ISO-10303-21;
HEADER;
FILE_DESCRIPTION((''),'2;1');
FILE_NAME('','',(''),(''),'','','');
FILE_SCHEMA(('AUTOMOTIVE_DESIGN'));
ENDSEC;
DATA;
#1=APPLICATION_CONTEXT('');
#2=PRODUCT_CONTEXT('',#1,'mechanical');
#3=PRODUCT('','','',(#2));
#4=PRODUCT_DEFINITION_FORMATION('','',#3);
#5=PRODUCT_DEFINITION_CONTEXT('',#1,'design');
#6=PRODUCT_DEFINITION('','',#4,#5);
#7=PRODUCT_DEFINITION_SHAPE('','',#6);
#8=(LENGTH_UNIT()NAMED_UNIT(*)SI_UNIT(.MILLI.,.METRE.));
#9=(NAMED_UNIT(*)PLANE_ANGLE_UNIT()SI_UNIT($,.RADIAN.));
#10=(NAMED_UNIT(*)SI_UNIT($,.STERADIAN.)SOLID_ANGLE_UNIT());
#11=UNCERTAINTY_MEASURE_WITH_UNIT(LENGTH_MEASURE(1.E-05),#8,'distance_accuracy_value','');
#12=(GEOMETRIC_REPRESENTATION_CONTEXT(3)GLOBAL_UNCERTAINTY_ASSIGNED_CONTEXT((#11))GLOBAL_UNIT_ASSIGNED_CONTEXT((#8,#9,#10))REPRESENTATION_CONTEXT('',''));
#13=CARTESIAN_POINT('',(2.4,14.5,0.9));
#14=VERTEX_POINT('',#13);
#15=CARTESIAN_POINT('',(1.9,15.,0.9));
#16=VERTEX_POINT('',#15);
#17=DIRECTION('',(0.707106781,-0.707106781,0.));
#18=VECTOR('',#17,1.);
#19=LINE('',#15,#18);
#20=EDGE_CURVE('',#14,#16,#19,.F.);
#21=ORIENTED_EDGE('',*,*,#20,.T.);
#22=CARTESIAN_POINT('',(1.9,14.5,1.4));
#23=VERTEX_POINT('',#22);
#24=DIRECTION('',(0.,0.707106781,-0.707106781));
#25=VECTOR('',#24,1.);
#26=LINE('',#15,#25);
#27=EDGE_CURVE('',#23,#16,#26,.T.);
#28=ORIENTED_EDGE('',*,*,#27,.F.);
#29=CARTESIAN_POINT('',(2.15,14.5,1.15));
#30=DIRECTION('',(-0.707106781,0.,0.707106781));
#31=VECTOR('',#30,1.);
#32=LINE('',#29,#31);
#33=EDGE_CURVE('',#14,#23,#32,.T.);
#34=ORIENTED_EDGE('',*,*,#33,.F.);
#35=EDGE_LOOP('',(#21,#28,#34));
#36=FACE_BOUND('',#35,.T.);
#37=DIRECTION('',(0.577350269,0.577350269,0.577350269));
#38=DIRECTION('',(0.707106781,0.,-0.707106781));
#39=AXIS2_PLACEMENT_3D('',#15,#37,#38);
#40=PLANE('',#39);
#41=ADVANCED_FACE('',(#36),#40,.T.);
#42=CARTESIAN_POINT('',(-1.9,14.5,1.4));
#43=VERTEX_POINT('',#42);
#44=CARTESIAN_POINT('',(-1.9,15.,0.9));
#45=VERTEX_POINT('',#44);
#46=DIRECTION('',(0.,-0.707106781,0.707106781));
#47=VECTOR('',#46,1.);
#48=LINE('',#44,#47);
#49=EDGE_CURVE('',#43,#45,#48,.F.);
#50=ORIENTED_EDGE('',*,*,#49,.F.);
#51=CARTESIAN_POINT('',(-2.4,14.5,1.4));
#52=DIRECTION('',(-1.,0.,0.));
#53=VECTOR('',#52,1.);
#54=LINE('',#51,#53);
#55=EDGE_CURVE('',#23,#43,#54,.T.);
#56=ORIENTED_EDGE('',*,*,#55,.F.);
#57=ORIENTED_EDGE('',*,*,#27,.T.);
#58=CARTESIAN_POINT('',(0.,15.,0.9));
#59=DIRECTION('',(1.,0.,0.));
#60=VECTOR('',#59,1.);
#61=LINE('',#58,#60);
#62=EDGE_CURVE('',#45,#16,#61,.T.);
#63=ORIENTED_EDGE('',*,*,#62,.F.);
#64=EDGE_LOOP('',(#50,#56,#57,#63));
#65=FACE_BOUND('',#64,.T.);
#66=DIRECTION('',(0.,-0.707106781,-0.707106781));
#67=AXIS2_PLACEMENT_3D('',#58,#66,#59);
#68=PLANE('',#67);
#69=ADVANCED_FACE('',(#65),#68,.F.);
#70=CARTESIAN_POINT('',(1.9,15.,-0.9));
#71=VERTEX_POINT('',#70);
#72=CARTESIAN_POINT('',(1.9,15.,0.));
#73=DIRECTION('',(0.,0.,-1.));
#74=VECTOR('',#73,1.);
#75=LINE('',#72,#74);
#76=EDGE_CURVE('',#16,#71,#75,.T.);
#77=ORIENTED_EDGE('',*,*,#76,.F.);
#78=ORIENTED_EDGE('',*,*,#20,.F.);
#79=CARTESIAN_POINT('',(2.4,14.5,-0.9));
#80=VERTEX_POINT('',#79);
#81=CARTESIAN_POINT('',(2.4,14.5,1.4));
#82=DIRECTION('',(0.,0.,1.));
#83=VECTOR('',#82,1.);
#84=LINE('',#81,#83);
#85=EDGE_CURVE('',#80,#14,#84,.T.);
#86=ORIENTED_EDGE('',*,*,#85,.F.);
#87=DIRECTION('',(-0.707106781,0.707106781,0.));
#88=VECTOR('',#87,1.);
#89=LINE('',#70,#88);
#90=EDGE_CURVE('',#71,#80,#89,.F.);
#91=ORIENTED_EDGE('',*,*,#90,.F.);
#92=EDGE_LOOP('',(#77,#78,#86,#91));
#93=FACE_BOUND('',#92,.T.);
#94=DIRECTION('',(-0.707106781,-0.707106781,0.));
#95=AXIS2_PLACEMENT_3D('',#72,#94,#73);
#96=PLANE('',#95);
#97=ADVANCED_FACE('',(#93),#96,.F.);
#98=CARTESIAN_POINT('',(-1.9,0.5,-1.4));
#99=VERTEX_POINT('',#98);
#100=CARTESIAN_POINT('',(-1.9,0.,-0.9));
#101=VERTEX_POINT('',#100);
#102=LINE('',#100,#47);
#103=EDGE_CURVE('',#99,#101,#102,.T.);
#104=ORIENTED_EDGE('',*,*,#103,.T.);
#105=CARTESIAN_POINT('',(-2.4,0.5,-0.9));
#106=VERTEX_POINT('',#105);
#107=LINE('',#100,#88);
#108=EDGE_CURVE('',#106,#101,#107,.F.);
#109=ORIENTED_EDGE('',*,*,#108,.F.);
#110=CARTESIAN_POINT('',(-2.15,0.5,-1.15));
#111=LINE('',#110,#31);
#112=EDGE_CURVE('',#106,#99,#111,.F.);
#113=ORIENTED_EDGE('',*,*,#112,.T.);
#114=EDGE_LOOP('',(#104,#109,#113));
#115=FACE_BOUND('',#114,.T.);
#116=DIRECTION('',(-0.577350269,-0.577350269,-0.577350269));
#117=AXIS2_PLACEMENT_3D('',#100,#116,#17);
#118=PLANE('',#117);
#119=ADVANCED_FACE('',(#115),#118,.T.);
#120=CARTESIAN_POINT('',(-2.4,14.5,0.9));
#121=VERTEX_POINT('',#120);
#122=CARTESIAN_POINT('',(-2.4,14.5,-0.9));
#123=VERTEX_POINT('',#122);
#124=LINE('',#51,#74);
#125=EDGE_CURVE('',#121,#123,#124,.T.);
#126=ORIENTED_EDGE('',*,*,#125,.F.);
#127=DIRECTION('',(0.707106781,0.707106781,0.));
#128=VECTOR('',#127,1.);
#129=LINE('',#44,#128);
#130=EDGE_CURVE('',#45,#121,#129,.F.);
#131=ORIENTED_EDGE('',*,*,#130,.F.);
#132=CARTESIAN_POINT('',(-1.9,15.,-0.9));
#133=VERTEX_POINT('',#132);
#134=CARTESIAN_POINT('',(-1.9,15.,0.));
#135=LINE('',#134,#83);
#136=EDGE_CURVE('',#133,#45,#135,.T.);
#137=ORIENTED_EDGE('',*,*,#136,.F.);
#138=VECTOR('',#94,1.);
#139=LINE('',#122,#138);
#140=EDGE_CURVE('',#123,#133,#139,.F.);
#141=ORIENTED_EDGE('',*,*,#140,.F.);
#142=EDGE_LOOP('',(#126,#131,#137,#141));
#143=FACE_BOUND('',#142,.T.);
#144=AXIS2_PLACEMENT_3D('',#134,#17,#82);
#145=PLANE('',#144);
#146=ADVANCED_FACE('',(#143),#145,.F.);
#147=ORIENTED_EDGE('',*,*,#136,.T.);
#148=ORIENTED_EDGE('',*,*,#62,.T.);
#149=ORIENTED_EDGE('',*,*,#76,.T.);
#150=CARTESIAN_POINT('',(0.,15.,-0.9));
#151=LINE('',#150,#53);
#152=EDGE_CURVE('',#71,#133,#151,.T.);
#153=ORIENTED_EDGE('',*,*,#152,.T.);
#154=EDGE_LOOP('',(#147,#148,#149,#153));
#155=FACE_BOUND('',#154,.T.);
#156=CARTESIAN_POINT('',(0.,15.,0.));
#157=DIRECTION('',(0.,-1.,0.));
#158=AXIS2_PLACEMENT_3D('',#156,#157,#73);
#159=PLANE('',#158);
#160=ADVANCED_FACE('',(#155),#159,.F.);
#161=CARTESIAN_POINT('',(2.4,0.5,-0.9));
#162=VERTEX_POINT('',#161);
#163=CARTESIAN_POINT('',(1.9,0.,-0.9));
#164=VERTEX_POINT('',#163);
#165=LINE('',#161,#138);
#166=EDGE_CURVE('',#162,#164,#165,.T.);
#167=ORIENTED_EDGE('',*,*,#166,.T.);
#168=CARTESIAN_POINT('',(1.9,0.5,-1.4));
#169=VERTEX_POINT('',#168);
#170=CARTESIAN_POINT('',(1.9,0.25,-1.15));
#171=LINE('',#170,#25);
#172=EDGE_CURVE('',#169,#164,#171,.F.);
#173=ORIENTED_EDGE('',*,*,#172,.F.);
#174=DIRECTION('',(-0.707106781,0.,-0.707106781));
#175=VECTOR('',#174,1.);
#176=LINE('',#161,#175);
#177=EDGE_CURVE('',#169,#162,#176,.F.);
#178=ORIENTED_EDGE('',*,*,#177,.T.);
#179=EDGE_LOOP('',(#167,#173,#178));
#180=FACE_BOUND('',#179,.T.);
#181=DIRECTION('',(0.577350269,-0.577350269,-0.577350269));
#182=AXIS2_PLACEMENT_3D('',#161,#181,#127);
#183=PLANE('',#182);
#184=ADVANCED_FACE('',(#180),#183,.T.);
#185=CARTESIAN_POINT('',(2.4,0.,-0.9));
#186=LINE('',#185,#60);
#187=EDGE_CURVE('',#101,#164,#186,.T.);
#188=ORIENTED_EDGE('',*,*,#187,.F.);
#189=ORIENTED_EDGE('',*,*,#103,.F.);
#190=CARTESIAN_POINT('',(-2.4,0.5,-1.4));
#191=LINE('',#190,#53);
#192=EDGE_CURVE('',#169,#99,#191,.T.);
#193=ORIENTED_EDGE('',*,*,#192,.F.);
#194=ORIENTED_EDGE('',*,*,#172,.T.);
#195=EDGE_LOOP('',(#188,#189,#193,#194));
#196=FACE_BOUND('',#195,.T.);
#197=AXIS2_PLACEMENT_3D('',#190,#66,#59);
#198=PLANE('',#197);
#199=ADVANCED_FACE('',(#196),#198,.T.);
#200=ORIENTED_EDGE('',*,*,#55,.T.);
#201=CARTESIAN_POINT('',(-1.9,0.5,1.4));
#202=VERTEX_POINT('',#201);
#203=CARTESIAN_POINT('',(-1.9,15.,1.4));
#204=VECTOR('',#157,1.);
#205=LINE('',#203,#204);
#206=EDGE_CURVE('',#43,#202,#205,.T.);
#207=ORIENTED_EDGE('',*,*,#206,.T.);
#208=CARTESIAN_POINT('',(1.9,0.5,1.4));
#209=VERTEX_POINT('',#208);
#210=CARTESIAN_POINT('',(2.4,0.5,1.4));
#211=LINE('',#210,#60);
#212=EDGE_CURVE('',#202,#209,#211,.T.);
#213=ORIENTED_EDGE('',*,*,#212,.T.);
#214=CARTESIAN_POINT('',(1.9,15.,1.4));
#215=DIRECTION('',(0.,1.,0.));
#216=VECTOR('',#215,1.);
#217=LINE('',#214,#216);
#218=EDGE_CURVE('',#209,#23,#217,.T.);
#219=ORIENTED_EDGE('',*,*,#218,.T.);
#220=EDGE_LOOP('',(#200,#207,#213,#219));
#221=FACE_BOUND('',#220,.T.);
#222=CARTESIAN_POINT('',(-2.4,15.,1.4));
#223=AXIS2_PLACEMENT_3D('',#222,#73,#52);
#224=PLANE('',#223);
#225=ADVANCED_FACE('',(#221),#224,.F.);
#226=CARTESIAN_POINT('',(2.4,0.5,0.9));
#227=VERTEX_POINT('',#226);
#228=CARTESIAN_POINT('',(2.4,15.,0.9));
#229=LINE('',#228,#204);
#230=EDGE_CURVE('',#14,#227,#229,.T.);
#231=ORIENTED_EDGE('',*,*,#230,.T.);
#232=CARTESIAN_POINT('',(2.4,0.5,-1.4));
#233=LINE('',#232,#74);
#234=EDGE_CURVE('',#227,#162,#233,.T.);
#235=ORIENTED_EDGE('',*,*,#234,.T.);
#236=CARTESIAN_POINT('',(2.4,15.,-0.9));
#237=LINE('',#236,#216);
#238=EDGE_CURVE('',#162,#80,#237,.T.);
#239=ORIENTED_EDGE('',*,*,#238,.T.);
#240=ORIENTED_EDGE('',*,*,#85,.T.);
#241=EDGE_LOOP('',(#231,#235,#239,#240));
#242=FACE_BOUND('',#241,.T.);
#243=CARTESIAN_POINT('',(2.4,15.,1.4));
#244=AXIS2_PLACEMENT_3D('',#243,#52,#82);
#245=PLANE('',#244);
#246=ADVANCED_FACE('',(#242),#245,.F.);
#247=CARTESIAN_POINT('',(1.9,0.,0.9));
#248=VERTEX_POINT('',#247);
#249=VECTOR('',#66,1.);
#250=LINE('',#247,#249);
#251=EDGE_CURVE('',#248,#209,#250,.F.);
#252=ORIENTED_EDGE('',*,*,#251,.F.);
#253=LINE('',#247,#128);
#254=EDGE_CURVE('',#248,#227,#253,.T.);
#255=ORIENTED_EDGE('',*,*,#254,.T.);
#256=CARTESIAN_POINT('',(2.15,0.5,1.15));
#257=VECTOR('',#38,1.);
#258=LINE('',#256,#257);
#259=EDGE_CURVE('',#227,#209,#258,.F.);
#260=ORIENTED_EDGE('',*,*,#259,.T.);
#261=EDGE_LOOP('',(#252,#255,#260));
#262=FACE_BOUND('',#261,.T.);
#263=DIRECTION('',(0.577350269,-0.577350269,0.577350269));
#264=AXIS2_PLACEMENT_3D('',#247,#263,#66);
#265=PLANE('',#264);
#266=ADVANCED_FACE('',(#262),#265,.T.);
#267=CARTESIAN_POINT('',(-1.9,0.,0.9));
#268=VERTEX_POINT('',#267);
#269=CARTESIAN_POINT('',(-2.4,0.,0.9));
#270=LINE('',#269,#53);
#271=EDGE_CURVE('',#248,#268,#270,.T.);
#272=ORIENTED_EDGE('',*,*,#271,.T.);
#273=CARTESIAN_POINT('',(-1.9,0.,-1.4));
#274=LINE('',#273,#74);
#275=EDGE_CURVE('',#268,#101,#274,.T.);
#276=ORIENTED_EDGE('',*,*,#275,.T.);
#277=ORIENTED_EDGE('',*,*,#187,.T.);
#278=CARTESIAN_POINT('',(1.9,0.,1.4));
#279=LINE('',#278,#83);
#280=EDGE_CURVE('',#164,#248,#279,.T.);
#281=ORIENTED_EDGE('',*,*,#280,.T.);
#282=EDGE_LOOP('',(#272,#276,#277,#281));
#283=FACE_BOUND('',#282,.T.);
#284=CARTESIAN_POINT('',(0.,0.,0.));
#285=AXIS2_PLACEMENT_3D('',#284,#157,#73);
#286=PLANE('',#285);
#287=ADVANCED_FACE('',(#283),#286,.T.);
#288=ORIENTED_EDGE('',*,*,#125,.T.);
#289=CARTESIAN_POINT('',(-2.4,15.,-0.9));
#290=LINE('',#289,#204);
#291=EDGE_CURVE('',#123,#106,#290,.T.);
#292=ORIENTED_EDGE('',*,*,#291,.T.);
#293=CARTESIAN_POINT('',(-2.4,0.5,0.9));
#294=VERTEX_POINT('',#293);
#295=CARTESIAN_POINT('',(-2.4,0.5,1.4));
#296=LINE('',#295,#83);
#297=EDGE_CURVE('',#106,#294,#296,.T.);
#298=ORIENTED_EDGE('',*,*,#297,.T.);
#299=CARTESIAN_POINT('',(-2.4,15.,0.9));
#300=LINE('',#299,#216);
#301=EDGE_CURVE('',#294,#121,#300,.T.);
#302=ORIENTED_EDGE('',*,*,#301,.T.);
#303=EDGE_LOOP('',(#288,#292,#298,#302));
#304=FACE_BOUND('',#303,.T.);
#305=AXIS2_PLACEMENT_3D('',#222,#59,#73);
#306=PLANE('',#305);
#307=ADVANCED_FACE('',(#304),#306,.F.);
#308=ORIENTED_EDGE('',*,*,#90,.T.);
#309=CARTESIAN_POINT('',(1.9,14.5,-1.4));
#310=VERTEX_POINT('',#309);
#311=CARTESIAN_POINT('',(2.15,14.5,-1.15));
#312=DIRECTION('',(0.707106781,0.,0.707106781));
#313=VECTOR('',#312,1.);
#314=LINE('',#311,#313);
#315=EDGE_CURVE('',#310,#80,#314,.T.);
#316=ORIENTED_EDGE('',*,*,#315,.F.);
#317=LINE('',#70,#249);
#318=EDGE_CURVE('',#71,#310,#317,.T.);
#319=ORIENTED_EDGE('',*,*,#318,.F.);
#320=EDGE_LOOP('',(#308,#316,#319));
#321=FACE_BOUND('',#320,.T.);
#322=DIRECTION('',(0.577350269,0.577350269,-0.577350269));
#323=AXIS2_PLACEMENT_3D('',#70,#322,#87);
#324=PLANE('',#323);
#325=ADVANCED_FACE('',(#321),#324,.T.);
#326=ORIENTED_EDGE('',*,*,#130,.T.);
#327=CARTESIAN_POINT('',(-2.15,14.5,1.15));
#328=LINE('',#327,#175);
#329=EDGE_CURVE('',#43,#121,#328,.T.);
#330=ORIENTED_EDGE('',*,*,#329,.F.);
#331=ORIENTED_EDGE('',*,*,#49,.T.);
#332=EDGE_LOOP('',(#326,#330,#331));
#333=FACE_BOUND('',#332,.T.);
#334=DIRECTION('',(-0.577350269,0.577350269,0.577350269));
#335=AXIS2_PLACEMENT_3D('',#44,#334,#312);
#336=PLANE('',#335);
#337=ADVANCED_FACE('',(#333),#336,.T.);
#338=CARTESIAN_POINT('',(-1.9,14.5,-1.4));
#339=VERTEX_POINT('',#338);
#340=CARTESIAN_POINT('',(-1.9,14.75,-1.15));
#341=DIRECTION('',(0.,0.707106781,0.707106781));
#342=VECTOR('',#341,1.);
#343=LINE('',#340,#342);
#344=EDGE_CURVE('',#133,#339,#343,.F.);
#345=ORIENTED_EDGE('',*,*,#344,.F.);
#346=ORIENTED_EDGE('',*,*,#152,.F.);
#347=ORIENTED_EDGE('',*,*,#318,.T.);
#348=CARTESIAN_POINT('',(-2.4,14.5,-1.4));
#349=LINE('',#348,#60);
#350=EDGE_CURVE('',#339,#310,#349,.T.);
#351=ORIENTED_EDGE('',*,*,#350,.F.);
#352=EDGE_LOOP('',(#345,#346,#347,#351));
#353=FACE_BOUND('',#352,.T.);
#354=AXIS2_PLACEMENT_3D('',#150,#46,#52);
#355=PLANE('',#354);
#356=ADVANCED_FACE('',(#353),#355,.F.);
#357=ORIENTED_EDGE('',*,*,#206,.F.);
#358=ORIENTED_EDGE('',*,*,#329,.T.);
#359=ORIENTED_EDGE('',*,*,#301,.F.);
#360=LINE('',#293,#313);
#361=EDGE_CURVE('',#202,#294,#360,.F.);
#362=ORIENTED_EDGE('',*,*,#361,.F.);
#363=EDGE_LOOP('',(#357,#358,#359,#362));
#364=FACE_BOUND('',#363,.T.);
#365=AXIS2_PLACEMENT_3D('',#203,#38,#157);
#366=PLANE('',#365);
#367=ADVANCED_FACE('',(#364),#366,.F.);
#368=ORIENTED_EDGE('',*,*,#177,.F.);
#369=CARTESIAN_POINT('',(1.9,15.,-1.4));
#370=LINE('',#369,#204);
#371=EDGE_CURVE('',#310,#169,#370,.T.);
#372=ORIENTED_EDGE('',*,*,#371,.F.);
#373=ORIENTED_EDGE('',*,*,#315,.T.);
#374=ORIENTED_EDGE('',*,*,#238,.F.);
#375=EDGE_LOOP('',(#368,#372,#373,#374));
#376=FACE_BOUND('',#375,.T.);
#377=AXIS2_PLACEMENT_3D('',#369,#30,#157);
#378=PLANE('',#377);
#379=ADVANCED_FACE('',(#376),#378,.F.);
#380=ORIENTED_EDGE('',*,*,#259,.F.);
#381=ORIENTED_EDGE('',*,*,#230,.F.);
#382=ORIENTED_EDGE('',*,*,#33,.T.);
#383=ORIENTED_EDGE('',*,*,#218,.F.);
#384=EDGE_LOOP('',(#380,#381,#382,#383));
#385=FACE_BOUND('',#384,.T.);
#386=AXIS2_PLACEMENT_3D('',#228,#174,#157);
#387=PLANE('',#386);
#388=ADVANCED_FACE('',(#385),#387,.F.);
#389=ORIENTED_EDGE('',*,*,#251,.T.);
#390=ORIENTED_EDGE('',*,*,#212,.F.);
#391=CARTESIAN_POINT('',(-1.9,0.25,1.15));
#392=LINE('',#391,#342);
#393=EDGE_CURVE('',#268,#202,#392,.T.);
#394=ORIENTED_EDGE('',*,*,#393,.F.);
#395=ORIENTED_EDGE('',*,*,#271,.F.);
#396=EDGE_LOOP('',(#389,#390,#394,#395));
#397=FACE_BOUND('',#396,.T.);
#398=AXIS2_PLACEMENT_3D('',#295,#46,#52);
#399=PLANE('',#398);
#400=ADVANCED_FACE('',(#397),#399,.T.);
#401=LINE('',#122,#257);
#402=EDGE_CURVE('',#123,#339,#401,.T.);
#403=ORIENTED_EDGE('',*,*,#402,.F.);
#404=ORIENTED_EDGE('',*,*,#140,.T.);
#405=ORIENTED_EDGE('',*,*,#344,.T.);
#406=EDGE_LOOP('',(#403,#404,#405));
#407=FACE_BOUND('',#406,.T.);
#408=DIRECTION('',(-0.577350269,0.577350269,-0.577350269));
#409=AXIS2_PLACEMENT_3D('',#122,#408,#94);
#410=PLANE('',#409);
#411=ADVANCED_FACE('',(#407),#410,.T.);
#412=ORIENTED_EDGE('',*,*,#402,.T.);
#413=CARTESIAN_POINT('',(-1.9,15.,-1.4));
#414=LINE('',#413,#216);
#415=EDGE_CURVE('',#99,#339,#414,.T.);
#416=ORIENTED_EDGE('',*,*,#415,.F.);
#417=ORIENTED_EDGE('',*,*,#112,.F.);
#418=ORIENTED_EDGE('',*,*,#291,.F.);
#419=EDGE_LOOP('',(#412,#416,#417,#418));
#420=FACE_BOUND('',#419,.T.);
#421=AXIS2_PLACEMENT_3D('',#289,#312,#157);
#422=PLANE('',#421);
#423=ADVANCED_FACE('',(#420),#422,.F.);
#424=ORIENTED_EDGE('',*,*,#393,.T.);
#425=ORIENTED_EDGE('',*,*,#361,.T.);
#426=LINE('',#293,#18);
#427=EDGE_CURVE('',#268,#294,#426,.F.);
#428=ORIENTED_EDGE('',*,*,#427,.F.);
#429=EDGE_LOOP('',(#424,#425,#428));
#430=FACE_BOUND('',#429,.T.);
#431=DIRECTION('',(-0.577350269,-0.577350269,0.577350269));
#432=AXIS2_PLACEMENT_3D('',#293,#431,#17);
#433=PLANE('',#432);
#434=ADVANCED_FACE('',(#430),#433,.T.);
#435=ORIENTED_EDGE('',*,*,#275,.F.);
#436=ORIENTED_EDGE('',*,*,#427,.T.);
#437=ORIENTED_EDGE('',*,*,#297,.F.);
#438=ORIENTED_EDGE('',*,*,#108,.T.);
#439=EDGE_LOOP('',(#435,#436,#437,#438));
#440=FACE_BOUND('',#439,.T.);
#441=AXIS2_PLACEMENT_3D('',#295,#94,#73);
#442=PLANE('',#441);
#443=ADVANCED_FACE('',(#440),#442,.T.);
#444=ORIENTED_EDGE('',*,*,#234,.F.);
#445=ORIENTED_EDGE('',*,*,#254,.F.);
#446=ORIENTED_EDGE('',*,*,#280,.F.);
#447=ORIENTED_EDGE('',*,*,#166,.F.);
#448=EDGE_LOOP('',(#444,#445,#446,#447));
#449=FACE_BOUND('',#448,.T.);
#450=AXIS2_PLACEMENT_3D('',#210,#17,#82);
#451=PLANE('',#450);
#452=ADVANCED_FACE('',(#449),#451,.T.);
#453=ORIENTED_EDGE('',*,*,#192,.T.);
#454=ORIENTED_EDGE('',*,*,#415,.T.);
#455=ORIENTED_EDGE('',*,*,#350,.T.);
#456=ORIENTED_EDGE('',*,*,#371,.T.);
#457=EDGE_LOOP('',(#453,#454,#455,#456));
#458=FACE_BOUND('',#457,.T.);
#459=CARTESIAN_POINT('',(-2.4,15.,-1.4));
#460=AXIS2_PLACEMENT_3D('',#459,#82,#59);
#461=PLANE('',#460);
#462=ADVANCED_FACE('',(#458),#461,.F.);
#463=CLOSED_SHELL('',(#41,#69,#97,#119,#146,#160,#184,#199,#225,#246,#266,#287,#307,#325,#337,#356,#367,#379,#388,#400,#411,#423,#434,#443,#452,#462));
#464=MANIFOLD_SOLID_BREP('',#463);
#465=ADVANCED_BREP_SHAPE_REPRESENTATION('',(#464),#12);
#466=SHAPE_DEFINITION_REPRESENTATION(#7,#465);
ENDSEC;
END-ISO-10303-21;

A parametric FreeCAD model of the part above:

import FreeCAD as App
import Part
import Sketcher
Q = App.Units.Quantity

doc = App.newDocument("Part")
body = doc.addObject("PartDesign::Body", "Body")

sketch1 = body.newObject("Sketcher::SketchObject", "Sketch")
sketch1.AttachmentSupport = (doc.getObject("XZ_Plane"), [""])
sketch1.MapMode = "FlatFace"
sketch1.addGeometry([
    Part.LineSegment(App.Vector(-2.4, -1.4, 0), App.Vector(-2.4, 1.4, 0)),
    Part.LineSegment(App.Vector(-2.4, 1.4, 0), App.Vector(2.4, 1.4, 0)),
    Part.LineSegment(App.Vector(2.4, 1.4, 0), App.Vector(2.4, -1.4, 0)),
    Part.LineSegment(App.Vector(2.4, -1.4, 0), App.Vector(-2.4, -1.4, 0)),
], False)
sketch1.addConstraint([
    Sketcher.Constraint("Coincident", 0, 2, 1, 1),
    Sketcher.Constraint("Coincident", 1, 2, 2, 1),
    Sketcher.Constraint("Coincident", 2, 2, 3, 1),
    Sketcher.Constraint("Coincident", 3, 2, 0, 1),
    Sketcher.Constraint("Vertical", 0),
    Sketcher.Constraint("Horizontal", 1),
    Sketcher.Constraint("Vertical", 2),
    Sketcher.Constraint("Horizontal", 3),
    Sketcher.Constraint("Symmetric", 0, 2, 2, 2, -1, 1),
    Sketcher.Constraint("DistanceX", 1, 1, 1, 2, Q("4.8 mm")),
    Sketcher.Constraint("DistanceY", 0, 1, 0, 2, Q("2.8 mm")),
])
pad1 = body.newObject("PartDesign::Pad", "Pad")
pad1.Profile = sketch1
pad1.Length = 15
pad1.Reversed = True
doc.recompute()

chamfer = body.newObject("PartDesign::Chamfer", "Chamfer")
chamfer.Base = (pad1, ["Edge1"])
chamfer.UseAllEdges = True
chamfer.Size = 0.5

doc.recompute()
